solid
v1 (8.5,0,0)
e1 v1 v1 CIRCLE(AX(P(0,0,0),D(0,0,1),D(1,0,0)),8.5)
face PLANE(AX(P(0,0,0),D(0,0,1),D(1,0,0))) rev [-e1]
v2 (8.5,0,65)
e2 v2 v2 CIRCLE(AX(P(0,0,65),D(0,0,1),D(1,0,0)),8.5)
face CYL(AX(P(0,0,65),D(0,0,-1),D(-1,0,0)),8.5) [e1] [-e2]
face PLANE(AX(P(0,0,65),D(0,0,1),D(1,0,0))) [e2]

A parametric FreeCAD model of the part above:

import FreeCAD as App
import Part
import Sketcher

V = App.Vector

doc = App.newDocument("Part")
body = doc.addObject("PartDesign::Body", "Body")

sketch1 = doc.addObject("Sketcher::SketchObject", "Sketch")
body.addObject(sketch1)
sketch1.AttachmentSupport = (doc.XY_Plane, [""])
sketch1.MapMode = "FlatFace"
sketch1.addGeometry(Part.Circle(V(0, 0, 0), V(0, 0, 1), 8), False)
sketch1.addConstraint(Sketcher.Constraint("Coincident", 0, 3, -1, 1))
sketch1.addConstraint(Sketcher.Constraint("Diameter", 0, 17.0))
pad1 = doc.addObject("PartDesign::Pad", "Pad")
body.addObject(pad1)
pad1.Profile = sketch1
pad1.Length = 65

doc.recompute()
